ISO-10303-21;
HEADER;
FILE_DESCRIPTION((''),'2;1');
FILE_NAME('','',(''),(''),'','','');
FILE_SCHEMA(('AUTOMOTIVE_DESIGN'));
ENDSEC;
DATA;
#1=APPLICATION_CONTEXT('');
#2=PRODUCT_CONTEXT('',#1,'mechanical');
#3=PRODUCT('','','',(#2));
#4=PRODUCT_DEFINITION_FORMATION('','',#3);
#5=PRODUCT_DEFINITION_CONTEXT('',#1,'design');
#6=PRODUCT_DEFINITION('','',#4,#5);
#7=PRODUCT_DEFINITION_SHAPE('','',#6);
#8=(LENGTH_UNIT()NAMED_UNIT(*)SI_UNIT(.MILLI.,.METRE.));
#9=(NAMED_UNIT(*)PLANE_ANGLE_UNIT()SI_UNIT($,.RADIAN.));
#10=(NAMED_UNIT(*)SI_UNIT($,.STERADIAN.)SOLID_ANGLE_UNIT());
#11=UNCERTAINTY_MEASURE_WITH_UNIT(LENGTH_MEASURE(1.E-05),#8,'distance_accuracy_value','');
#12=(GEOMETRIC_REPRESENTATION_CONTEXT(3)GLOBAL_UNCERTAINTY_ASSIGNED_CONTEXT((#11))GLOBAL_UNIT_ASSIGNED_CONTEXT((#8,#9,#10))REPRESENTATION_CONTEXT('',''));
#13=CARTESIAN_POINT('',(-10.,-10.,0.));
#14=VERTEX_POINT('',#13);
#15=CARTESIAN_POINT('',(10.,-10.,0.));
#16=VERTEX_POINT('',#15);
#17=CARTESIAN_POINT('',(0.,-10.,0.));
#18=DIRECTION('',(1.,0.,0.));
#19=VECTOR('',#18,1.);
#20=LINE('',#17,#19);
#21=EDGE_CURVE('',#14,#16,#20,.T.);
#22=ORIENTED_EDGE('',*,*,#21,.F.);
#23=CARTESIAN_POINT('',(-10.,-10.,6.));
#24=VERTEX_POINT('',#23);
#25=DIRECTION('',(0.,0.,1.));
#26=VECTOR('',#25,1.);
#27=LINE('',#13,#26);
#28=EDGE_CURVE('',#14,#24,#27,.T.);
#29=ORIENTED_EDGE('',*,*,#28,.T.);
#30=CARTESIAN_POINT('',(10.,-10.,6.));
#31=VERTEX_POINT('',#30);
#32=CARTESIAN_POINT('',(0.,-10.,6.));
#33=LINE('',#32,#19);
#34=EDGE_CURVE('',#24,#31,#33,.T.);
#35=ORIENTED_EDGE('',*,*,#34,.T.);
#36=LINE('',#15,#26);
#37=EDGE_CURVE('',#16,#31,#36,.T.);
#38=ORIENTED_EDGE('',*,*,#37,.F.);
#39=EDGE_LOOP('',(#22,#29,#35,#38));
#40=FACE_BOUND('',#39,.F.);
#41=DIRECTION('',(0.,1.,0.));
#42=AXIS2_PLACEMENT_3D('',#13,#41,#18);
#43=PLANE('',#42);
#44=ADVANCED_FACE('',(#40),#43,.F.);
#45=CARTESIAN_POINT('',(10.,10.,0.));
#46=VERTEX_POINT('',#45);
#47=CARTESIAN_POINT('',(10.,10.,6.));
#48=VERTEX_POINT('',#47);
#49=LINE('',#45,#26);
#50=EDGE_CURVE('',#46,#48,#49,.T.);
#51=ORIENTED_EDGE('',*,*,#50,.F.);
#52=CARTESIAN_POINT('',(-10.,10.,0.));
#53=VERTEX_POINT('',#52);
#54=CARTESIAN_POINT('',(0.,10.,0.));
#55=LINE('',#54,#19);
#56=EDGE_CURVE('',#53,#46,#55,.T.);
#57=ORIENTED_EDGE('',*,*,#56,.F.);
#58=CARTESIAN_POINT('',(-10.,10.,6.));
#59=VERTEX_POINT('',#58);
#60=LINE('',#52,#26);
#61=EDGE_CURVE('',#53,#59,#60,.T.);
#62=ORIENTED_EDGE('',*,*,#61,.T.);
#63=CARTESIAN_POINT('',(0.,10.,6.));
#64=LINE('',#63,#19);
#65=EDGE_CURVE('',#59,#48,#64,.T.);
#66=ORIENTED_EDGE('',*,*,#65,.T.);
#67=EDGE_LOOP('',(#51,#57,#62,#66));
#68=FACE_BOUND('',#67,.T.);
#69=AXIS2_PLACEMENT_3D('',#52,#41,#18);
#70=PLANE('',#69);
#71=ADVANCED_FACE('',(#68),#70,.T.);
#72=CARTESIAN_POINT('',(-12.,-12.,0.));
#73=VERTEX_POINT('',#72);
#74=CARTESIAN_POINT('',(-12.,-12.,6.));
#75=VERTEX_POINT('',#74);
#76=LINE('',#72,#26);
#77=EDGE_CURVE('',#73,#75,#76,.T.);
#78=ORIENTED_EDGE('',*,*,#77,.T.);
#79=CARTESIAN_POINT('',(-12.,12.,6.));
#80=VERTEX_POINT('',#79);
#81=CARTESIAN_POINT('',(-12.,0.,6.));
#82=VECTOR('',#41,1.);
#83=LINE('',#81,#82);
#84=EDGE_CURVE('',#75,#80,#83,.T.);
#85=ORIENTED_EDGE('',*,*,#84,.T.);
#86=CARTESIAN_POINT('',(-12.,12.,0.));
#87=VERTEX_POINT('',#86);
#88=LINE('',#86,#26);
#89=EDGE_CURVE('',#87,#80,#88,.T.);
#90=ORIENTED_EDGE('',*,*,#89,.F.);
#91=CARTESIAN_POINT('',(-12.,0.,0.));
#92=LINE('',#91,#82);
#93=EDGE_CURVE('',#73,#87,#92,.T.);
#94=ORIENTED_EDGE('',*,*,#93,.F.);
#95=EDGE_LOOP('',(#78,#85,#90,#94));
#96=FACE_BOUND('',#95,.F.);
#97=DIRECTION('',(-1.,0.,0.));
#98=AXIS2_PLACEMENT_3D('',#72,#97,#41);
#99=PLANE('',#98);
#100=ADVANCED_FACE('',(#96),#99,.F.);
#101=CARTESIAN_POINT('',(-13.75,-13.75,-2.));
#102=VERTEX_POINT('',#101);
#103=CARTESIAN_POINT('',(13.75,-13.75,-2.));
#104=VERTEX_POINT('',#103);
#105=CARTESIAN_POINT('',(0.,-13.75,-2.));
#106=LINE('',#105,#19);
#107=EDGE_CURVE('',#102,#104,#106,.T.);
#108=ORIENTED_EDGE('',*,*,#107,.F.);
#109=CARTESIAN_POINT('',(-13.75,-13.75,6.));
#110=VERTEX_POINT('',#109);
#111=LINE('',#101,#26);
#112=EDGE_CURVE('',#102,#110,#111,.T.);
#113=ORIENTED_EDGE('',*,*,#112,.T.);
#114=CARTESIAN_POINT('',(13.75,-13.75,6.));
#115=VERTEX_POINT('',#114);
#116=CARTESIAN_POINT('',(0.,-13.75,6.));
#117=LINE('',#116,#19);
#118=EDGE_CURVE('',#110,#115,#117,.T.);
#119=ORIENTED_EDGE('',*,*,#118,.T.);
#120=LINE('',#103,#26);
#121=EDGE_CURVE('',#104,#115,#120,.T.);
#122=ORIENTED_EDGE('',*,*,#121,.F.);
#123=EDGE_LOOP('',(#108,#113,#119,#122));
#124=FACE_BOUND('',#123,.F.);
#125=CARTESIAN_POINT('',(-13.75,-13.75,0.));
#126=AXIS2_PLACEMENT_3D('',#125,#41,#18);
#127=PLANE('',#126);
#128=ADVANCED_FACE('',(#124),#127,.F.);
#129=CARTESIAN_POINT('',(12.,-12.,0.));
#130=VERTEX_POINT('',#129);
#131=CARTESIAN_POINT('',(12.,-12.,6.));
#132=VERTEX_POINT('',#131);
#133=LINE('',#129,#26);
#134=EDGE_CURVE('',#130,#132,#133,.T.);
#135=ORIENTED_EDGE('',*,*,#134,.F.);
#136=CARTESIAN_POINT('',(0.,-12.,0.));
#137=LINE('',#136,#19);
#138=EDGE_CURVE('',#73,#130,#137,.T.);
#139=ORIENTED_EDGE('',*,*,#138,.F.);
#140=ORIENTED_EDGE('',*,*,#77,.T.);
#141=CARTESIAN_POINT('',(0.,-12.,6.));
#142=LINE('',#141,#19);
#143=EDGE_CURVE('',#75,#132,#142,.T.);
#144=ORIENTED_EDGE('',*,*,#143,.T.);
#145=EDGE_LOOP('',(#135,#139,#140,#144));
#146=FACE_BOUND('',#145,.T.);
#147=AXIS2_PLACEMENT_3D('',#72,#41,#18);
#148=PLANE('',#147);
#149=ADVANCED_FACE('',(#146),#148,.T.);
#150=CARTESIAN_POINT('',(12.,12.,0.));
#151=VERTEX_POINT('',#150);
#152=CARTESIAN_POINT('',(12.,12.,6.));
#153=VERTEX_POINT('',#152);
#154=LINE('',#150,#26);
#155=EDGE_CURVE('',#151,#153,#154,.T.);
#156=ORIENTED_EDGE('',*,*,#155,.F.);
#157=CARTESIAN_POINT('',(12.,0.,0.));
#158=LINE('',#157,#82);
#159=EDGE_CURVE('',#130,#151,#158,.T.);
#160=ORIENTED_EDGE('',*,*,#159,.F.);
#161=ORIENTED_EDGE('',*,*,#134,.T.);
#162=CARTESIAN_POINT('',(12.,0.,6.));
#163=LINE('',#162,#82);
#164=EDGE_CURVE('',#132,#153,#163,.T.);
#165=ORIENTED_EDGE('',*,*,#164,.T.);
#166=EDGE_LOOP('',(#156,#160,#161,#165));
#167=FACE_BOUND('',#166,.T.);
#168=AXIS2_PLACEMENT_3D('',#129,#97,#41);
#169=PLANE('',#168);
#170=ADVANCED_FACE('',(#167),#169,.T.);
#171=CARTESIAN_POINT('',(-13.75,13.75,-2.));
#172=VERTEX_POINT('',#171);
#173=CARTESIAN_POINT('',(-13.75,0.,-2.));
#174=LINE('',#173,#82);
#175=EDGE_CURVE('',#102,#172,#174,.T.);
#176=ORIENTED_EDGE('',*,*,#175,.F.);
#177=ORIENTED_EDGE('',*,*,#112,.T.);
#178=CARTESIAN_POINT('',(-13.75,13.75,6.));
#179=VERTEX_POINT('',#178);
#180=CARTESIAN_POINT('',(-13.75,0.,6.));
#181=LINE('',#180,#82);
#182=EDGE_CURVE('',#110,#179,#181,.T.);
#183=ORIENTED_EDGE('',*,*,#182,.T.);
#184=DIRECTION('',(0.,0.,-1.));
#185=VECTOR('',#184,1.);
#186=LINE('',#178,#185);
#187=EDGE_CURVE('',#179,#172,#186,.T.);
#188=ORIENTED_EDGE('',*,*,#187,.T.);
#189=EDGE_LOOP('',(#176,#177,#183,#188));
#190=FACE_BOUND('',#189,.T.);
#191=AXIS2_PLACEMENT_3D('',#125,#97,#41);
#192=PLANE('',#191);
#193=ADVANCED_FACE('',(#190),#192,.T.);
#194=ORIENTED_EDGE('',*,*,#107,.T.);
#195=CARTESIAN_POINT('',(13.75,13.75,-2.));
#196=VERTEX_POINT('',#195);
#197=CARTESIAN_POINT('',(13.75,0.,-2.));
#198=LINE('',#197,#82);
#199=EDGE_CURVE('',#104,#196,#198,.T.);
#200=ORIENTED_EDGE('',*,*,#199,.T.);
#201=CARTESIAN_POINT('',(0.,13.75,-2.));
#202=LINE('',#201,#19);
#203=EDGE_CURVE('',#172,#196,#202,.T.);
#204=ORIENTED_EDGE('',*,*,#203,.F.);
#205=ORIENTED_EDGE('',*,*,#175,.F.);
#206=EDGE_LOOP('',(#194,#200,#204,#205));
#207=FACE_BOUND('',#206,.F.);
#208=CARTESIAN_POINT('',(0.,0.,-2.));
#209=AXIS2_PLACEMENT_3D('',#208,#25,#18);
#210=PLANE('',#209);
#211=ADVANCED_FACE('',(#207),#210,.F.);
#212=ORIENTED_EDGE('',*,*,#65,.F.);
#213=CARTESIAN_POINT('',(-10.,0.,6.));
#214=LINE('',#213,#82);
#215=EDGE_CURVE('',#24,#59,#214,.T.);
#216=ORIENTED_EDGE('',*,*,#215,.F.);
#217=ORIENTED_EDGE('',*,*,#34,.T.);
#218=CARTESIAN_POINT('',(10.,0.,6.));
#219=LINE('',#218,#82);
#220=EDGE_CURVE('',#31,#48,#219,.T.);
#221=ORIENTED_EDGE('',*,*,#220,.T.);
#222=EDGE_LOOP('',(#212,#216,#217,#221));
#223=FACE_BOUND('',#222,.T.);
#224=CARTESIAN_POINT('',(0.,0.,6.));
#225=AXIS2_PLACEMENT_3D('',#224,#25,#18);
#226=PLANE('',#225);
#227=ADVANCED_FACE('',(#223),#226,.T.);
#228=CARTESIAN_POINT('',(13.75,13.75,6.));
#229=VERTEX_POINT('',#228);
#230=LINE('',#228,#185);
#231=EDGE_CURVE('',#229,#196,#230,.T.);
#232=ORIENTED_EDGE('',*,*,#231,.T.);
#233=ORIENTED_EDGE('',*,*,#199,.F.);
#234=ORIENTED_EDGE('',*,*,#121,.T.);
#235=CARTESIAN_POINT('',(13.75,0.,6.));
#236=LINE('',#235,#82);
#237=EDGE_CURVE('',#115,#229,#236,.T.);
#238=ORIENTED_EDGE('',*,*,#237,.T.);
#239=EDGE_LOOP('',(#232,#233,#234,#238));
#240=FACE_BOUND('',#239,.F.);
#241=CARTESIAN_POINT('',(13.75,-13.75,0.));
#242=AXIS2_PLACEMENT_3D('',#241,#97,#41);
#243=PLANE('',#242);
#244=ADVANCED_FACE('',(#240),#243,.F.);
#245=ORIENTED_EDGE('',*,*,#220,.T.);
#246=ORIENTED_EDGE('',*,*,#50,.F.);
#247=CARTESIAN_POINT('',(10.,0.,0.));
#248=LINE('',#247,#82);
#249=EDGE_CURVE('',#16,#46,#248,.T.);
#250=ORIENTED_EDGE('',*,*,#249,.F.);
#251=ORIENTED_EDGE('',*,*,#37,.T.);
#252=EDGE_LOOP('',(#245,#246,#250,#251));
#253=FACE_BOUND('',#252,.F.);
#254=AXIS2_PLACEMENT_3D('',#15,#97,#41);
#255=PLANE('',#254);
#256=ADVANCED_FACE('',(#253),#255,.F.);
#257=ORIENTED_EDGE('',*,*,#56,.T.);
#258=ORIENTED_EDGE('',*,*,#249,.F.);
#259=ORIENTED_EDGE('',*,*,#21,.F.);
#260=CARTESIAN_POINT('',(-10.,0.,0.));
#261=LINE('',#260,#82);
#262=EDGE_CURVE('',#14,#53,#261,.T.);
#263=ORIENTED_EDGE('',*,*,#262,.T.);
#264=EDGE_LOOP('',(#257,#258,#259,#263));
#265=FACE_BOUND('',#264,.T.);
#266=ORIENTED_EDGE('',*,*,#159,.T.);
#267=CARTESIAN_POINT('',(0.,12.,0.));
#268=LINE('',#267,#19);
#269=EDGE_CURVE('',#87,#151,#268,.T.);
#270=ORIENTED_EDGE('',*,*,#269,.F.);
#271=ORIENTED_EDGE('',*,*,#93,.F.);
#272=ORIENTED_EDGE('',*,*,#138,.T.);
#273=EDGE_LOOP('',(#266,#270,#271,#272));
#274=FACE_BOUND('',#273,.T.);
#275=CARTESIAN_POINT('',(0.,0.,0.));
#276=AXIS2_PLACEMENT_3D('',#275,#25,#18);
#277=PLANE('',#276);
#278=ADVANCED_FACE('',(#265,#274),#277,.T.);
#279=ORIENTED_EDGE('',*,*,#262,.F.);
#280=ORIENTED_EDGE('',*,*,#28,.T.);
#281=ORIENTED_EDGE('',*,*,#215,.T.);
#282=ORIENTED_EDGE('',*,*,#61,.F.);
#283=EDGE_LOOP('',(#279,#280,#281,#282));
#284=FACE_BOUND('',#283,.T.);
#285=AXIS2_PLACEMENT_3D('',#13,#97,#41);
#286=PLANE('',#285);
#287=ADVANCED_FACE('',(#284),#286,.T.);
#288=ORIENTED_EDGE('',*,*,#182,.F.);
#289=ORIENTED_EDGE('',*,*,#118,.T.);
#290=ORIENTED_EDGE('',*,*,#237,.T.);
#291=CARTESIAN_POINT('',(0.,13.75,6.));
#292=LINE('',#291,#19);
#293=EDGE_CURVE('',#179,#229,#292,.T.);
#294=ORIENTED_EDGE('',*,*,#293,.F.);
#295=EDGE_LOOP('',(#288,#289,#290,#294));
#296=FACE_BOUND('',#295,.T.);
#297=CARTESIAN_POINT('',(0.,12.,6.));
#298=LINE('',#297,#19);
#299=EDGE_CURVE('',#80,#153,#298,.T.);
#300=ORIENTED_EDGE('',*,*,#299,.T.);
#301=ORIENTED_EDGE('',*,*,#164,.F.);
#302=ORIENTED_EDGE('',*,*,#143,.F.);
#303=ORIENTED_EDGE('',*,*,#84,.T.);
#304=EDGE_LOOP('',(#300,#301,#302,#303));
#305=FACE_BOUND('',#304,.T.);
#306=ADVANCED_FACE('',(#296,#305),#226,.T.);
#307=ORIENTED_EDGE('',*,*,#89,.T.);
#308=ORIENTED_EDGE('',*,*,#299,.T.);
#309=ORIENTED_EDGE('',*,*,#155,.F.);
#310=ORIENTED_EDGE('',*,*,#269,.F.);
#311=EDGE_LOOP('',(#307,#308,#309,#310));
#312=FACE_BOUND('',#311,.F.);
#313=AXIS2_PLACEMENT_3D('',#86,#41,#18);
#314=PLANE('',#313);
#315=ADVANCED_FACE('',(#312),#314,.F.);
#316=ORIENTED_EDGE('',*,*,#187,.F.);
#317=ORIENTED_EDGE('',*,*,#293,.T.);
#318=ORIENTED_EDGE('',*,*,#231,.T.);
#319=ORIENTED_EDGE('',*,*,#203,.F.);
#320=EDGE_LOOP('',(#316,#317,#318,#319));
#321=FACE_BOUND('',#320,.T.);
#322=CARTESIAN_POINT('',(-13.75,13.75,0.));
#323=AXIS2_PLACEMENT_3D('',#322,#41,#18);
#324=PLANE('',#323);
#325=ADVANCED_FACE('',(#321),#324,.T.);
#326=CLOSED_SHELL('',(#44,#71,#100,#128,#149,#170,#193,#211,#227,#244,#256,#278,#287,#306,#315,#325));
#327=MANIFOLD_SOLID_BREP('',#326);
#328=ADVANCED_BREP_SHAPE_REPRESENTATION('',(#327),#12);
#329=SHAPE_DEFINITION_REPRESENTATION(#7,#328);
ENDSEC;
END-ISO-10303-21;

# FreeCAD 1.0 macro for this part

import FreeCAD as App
import Part
import Sketcher

V = App.Vector
Q = App.Units.Quantity


def add_polygon(sketch, points):
    """Adds a closed chain of lines whose ends are joined by coincident constraints."""
    first, n = sketch.GeometryCount, len(points)
    for a, b in zip(points, points[1:] + points[:1]):
        sketch.addGeometry(Part.LineSegment(App.Vector(*a, 0), App.Vector(*b, 0)), False)
    for i in range(n):
        sketch.addConstraint(Sketcher.Constraint("Coincident", first + i, 2, first + (i + 1) % n, 1))

doc = App.newDocument("Part")
body = doc.addObject("PartDesign::Body", "Body")

sketch1 = body.newObject("Sketcher::SketchObject", "Sketch")
sketch1.AttachmentSupport = (doc.getObject("XY_Plane"), [""])
sketch1.MapMode = "FlatFace"
add_polygon(sketch1, [(-13.75, 13.75), (-13.75, -13.75), (13.75, -13.75), (13.75, 13.75)])
sketch1.addConstraint(Sketcher.Constraint("Vertical", 0))
sketch1.addConstraint(Sketcher.Constraint("Horizontal", 1))
sketch1.addConstraint(Sketcher.Constraint("Vertical", 2))
sketch1.addConstraint(Sketcher.Constraint("Horizontal", 3))
sketch1.addConstraint(Sketcher.Constraint("Symmetric", 0, 2, 2, 2, -1, 1))
sketch1.addConstraint(Sketcher.Constraint("Equal", 3, 0))
sketch1.addConstraint(Sketcher.Constraint("DistanceX", 1, 1, 1, 2, Q("27.5 mm")))
pad1 = body.newObject("PartDesign::Pad", "Pad")
pad1.Profile = sketch1
pad1.Length = 2
pad1.Reversed = True

sketch2 = body.newObject("Sketcher::SketchObject", "Sketch001")
sketch2.AttachmentSupport = (doc.getObject("XY_Plane"), [""])
sketch2.MapMode = "FlatFace"
add_polygon(sketch2, [(-13.75, 13.75), (-13.75, -13.75), (13.75, -13.75), (13.75, 13.75)])
add_polygon(sketch2, [(12, -12), (-12, -12), (-12, 12), (12, 12)])
add_polygon(sketch2, [(-10, 10), (-10, -10), (10, -10), (10, 10)])
sketch2.addConstraint(Sketcher.Constraint("Vertical", 0))
sketch2.addConstraint(Sketcher.Constraint("Horizontal", 1))
sketch2.addConstraint(Sketcher.Constraint("Vertical", 2))
sketch2.addConstraint(Sketcher.Constraint("Horizontal", 3))
sketch2.addConstraint(Sketcher.Constraint("Horizontal", 4))
sketch2.addConstraint(Sketcher.Constraint("Vertical", 5))
sketch2.addConstraint(Sketcher.Constraint("Horizontal", 6))
sketch2.addConstraint(Sketcher.Constraint("Vertical", 7))
sketch2.addConstraint(Sketcher.Constraint("Vertical", 8))
sketch2.addConstraint(Sketcher.Constraint("Horizontal", 9))
sketch2.addConstraint(Sketcher.Constraint("Vertical", 10))
sketch2.addConstraint(Sketcher.Constraint("Horizontal", 11))
sketch2.addConstraint(Sketcher.Constraint("Symmetric", 0, 2, 2, 2, -1, 1))
sketch2.addConstraint(Sketcher.Constraint("Symmetric", 4, 2, 6, 2, -1, 1))
sketch2.addConstraint(Sketcher.Constraint("Symmetric", 8, 2, 10, 2, -1, 1))
sketch2.addConstraint(Sketcher.Constraint("Equal", 3, 0))
sketch2.addConstraint(Sketcher.Constraint("Equal", 6, 5))
sketch2.addConstraint(Sketcher.Constraint("Equal", 11, 8))
sketch2.addConstraint(Sketcher.Constraint("DistanceX", 4, 2, 4, 1, Q("24 mm")))
sketch2.addConstraint(Sketcher.Constraint("DistanceX", 9, 1, 9, 2, Q("20 mm")))
sketch2.addConstraint(Sketcher.Constraint("DistanceX", 1, 1, 1, 2, Q("27.5 mm")))
pad2 = body.newObject("PartDesign::Pad", "Pad001")
pad2.Profile = sketch2
pad2.Length = 6

doc.recompute()
